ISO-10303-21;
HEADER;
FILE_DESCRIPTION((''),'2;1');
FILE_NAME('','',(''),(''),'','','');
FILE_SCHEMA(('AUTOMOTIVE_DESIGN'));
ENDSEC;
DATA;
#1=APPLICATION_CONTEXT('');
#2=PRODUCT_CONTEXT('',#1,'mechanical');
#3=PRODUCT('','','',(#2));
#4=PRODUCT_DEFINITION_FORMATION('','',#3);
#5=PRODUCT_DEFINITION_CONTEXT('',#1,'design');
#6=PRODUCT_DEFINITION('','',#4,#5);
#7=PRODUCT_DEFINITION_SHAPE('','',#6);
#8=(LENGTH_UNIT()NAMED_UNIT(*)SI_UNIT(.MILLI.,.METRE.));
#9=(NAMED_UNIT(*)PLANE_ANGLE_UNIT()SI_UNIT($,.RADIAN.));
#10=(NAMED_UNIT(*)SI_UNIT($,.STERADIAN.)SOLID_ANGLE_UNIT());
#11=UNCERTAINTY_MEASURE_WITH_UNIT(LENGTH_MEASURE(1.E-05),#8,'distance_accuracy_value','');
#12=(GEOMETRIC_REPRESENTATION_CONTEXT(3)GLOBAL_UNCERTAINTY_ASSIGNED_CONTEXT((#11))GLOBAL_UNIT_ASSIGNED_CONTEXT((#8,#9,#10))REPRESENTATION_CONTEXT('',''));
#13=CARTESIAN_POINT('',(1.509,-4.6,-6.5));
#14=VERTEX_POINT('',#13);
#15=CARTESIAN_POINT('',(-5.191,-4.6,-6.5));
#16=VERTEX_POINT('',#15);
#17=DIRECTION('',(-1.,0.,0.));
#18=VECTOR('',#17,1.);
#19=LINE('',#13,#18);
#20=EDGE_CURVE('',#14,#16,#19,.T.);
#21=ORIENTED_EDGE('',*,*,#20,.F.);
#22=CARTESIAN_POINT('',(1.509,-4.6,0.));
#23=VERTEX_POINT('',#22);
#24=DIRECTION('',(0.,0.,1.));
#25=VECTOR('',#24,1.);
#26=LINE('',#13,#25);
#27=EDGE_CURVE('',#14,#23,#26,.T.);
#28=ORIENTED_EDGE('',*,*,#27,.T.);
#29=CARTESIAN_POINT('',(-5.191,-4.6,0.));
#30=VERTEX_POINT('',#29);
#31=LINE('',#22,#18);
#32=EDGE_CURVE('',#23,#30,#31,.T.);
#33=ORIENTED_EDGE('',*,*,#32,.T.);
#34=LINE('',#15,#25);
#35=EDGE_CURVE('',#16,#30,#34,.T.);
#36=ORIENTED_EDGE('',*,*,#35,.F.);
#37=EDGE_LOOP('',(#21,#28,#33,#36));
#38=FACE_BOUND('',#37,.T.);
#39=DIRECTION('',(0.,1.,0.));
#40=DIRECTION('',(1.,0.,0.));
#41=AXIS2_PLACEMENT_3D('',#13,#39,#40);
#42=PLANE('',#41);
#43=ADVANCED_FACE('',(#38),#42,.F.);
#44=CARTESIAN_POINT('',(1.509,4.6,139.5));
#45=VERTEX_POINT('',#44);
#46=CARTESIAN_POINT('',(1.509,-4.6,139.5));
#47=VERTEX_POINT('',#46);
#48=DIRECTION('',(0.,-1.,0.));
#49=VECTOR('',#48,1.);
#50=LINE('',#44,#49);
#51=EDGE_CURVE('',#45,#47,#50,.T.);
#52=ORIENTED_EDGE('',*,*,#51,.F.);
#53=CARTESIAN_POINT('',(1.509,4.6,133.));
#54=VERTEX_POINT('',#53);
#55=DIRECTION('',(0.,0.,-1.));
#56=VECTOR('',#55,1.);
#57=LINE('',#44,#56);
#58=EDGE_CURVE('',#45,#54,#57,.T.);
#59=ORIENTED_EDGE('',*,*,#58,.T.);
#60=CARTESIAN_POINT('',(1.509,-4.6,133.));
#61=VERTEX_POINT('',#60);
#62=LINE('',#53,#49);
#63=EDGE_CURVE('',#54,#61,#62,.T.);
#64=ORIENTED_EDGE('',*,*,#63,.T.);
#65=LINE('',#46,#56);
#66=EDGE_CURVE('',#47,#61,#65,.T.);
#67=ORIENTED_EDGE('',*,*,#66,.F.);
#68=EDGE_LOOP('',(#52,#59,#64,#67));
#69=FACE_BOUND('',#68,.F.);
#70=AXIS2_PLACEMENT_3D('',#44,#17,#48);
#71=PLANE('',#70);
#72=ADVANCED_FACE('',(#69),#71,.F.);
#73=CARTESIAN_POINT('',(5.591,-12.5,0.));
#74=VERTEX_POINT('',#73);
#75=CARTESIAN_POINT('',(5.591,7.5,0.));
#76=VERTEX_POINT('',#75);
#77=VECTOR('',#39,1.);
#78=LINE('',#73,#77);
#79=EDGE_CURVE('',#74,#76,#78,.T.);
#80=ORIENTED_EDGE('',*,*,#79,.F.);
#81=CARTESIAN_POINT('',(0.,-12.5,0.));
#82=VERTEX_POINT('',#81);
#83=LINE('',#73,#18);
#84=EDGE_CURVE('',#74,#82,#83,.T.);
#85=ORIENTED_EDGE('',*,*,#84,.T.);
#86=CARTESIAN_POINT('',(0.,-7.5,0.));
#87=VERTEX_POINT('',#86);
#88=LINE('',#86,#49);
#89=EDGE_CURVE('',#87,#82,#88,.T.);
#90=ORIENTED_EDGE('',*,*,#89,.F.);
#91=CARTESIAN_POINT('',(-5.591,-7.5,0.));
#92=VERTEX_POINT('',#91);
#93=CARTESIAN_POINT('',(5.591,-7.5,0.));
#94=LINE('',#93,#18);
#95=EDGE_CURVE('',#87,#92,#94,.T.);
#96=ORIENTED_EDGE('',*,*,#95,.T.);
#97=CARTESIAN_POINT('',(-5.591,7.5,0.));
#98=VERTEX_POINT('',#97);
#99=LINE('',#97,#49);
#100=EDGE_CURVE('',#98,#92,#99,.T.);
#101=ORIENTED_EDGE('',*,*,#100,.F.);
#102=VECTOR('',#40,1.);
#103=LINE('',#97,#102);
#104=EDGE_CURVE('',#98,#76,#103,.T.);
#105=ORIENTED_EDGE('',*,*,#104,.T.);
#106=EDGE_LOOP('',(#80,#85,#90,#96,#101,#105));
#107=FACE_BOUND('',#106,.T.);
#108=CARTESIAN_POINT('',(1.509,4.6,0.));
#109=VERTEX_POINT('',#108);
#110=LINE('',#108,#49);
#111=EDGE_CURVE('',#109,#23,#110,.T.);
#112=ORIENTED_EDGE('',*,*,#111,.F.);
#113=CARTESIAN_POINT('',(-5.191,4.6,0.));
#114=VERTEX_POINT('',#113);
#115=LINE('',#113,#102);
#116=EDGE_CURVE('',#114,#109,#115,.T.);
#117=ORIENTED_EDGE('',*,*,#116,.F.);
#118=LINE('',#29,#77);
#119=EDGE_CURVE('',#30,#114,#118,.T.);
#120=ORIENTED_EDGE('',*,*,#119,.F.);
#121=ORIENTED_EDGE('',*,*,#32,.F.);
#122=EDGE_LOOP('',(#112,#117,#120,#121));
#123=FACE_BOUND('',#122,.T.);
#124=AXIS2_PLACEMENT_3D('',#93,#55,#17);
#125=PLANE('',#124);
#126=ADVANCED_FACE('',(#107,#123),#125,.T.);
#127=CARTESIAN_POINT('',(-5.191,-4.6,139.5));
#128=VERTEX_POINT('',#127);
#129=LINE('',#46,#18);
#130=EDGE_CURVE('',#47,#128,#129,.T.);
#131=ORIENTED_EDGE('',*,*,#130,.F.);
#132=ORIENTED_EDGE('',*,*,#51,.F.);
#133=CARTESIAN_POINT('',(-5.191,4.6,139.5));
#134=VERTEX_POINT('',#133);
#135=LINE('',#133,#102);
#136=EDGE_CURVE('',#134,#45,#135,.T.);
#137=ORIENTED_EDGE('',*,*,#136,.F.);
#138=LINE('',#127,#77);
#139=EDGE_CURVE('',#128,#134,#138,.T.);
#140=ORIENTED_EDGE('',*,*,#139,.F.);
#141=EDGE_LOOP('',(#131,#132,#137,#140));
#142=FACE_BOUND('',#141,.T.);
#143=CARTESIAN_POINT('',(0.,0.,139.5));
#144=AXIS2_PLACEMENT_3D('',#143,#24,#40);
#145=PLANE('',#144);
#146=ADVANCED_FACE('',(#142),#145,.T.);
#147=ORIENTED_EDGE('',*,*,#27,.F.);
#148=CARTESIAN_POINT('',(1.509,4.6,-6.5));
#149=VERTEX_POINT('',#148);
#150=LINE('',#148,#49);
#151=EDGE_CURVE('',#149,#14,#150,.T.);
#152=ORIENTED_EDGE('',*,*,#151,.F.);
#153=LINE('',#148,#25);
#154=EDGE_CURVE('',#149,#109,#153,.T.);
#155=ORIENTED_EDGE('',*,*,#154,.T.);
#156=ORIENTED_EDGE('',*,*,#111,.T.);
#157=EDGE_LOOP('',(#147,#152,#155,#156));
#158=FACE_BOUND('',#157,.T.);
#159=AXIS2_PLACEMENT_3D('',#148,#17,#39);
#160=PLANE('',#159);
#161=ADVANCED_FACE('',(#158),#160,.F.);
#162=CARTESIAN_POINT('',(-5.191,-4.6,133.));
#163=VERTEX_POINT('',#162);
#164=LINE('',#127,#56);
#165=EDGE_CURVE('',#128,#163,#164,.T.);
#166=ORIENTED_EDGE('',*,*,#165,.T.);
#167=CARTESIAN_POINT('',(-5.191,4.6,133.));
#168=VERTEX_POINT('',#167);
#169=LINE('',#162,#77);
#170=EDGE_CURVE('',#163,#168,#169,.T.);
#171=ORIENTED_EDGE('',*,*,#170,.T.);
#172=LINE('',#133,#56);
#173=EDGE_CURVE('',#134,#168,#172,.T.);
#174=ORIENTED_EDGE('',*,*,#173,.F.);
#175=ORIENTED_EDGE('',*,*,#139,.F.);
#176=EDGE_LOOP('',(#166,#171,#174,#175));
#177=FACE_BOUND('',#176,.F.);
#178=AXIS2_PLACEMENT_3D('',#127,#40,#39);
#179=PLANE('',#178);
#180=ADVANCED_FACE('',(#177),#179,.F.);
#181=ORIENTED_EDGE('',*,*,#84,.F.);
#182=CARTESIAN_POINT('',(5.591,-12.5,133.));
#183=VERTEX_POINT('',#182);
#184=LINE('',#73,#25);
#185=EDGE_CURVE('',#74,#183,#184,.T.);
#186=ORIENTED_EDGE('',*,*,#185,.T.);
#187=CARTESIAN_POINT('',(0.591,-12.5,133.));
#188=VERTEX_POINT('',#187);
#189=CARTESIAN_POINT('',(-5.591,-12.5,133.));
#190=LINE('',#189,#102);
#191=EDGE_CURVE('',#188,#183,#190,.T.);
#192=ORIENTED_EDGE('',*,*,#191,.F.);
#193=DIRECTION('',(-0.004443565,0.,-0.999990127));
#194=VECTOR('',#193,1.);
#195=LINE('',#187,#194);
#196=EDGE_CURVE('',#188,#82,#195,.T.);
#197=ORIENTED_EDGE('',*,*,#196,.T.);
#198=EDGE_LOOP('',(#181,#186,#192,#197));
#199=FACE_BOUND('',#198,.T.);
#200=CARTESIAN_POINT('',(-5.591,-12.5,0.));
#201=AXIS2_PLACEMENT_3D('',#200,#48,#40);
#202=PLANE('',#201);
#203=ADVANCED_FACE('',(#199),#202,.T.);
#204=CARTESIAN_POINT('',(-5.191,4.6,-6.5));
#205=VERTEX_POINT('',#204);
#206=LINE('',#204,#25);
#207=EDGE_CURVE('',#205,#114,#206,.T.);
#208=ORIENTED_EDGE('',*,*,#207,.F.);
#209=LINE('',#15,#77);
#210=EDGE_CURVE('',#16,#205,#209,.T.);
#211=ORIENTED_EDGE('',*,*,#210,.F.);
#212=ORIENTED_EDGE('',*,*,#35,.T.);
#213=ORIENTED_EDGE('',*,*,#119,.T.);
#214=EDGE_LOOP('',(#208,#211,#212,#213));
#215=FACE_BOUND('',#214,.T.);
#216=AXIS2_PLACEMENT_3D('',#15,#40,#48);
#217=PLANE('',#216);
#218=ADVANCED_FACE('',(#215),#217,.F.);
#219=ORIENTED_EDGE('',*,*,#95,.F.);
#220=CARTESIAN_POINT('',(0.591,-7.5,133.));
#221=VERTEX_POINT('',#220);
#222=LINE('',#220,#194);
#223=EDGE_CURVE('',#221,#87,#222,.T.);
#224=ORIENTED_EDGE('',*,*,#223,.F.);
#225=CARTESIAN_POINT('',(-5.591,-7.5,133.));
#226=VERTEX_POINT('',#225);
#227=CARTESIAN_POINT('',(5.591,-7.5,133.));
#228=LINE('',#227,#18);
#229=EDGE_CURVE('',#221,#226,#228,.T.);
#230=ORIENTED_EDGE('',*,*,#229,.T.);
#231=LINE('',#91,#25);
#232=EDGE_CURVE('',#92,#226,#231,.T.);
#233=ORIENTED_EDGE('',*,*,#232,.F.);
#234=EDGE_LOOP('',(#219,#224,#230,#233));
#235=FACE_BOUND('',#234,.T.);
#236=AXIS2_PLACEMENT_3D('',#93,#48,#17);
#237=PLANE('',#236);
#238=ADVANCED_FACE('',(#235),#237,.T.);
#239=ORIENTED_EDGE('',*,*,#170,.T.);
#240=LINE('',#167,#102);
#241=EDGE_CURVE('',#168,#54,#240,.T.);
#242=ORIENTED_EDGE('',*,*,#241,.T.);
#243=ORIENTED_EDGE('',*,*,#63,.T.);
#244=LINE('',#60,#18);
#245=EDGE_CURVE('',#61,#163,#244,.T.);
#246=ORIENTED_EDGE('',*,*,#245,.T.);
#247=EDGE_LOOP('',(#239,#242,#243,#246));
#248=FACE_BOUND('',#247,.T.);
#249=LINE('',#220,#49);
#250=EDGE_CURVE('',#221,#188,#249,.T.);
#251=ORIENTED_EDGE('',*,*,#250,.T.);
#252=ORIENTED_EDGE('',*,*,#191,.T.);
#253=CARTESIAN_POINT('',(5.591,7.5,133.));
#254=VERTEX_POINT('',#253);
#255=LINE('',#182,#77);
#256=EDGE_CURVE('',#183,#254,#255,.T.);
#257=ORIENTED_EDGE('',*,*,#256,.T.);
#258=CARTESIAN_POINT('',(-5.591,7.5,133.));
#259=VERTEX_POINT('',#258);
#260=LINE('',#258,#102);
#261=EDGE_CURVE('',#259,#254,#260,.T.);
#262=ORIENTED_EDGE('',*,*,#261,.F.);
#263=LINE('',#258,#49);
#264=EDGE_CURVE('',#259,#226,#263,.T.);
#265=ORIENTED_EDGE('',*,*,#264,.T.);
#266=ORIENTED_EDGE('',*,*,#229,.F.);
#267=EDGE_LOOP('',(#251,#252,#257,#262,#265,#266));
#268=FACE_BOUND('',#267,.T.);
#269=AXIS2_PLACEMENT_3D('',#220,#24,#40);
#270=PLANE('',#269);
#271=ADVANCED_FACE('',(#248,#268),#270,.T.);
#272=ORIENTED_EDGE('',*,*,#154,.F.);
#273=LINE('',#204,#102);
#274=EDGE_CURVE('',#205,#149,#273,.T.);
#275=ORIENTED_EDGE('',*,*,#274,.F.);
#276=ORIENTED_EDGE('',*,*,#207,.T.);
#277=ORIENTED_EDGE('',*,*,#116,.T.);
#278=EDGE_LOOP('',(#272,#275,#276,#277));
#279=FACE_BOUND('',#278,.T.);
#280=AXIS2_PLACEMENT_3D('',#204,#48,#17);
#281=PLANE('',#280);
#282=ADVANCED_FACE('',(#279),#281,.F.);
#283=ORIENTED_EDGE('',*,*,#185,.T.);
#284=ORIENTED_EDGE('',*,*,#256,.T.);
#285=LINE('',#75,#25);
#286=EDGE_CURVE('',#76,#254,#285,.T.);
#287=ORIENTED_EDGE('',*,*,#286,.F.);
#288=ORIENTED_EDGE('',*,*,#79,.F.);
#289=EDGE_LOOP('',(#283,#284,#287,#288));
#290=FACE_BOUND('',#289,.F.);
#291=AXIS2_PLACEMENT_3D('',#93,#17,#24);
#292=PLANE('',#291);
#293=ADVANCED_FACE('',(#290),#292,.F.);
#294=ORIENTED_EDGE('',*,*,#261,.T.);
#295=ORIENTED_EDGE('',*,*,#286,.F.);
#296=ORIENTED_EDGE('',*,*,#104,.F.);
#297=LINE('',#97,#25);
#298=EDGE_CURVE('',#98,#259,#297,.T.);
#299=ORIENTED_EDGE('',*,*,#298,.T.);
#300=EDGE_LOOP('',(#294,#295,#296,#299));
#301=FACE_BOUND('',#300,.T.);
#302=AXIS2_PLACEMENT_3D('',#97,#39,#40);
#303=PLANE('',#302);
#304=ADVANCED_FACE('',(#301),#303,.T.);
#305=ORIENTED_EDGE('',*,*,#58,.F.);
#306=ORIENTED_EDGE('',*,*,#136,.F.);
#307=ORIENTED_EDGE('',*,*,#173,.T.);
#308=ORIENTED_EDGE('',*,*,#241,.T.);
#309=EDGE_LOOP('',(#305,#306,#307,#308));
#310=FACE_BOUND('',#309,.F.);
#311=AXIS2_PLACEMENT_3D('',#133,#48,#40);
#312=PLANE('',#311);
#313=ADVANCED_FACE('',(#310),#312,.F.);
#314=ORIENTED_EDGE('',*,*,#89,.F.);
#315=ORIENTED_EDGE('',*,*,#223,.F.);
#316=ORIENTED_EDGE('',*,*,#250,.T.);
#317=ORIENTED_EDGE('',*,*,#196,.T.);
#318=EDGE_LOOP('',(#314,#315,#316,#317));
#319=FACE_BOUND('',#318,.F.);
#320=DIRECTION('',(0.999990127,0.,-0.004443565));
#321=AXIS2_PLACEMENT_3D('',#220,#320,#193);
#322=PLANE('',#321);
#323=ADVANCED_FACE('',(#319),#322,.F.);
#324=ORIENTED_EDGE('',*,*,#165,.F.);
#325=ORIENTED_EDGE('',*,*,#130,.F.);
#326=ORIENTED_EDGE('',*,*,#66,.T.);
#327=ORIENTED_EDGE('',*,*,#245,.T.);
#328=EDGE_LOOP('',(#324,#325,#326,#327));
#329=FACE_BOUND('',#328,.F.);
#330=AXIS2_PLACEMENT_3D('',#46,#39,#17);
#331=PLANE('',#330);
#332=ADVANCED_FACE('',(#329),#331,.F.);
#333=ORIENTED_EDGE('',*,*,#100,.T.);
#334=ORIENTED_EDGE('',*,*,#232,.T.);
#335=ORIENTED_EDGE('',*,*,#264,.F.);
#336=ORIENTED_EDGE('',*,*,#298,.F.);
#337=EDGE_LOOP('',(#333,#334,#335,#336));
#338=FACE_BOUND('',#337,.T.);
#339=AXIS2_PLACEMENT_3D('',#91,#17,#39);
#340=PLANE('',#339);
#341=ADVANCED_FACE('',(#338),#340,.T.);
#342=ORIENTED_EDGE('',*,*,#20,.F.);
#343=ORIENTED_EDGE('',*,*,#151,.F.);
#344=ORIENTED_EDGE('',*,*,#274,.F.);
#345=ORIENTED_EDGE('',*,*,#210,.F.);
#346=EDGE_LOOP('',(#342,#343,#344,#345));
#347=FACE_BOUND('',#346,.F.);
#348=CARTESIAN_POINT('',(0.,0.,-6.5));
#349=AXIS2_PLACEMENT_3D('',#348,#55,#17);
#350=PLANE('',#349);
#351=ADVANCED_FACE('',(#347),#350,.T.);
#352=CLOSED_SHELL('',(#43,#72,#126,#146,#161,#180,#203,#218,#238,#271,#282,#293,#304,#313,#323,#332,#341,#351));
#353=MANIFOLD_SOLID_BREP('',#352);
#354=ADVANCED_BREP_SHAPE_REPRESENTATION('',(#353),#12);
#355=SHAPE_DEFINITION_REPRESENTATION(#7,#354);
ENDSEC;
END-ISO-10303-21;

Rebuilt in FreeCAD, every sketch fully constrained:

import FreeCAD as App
import Part
import Sketcher
from FreeCAD import Vector
Q = App.Units.Quantity

doc = App.newDocument("Part")
body = doc.addObject("PartDesign::Body", "Body")

sketch1 = body.newObject("Sketcher::SketchObject", "Sketch")
sketch1.AttachmentSupport = (doc.getObject("XY_Plane"), [""])
sketch1.MapMode = "FlatFace"
sketch1.addGeometry(Part.LineSegment(Vector(-6, 8, 0), Vector(-6, -8, 0)), False)
sketch1.addGeometry(Part.LineSegment(Vector(-6, -8, 0), Vector(6, -8, 0)), False)
sketch1.addGeometry(Part.LineSegment(Vector(6, -8, 0), Vector(6, 8, 0)), False)
sketch1.addGeometry(Part.LineSegment(Vector(6, 8, 0), Vector(-6, 8, 0)), False)
sketch1.addConstraint(Sketcher.Constraint("Coincident", 0, 2, 1, 1))
sketch1.addConstraint(Sketcher.Constraint("Coincident", 1, 2, 2, 1))
sketch1.addConstraint(Sketcher.Constraint("Coincident", 2, 2, 3, 1))
sketch1.addConstraint(Sketcher.Constraint("Coincident", 3, 2, 0, 1))
sketch1.addConstraint(Sketcher.Constraint("Vertical", 0))
sketch1.addConstraint(Sketcher.Constraint("Horizontal", 1))
sketch1.addConstraint(Sketcher.Constraint("Vertical", 2))
sketch1.addConstraint(Sketcher.Constraint("Horizontal", 3))
sketch1.addConstraint(Sketcher.Constraint("Symmetric", 0, 2, 2, 2, -1, 1))
sketch1.addConstraint(Sketcher.Constraint("DistanceY", 0, 2, 0, 1, Q("15 mm")))
sketch1.addConstraint(Sketcher.Constraint("DistanceX", 1, 1, 1, 2, Q("11.182 mm")))
pad1 = body.newObject("PartDesign::Pad", "Pad")
pad1.Profile = sketch1
pad1.Length = 133

sketch2 = body.newObject("Sketcher::SketchObject", "Sketch001")
sketch2.AttachmentSupport = (doc.getObject("XY_Plane"), [""])
sketch2.MapMode = "FlatFace"
sketch2.AttachmentOffset = App.Placement(Vector(0, 0, 133), App.Rotation())
sketch2.addGeometry(Part.LineSegment(Vector(2, 5, 0), Vector(-6, 5, 0)), False)
sketch2.addGeometry(Part.LineSegment(Vector(-6, 5, 0), Vector(-6, -5, 0)), False)
sketch2.addGeometry(Part.LineSegment(Vector(-6, -5, 0), Vector(2, -5, 0)), False)
sketch2.addGeometry(Part.LineSegment(Vector(2, -5, 0), Vector(2, 5, 0)), False)
sketch2.addConstraint(Sketcher.Constraint("Coincident", 0, 2, 1, 1))
sketch2.addConstraint(Sketcher.Constraint("Coincident", 1, 2, 2, 1))
sketch2.addConstraint(Sketcher.Constraint("Coincident", 2, 2, 3, 1))
sketch2.addConstraint(Sketcher.Constraint("Coincident", 3, 2, 0, 1))
sketch2.addConstraint(Sketcher.Constraint("Horizontal", 0))
sketch2.addConstraint(Sketcher.Constraint("Vertical", 1))
sketch2.addConstraint(Sketcher.Constraint("Horizontal", 2))
sketch2.addConstraint(Sketcher.Constraint("Vertical", 3))
sketch2.addConstraint(Sketcher.Constraint("DistanceY", 1, 2, 1, 1, Q("10 mm")))
sketch2.addConstraint(Sketcher.Constraint("DistanceX", 0, 2, 0, 1, Q("7.5 mm")))
sketch2.addConstraint(Sketcher.Constraint("DistanceY", -1, 1, 0, 2, Q("5 mm")))
sketch2.addConstraint(Sketcher.Constraint("DistanceX", 0, 2, -1, 1, Q("5.591 mm")))
pad2 = body.newObject("PartDesign::Pad", "Pad001")
pad2.Profile = sketch2
pad2.Length = 6.5
doc.recompute()

datumplane = body.newObject("PartDesign::Plane", "DatumPlane")
datumplane.AttachmentSupport = (doc.getObject("XY_Plane"), [""])
datumplane.MapMode = "FlatFace"
datumplane.AttachmentOffset = App.Placement(Vector(0, 0, 66.5), App.Rotation())
mirrored = body.newObject("PartDesign::Mirrored", "Mirrored")
mirrored.Originals = [pad2]
mirrored.MirrorPlane = (datumplane, [""])
body.Tip = mirrored

sketch3 = body.newObject("Sketcher::SketchObject", "Sketch002")
sketch3.AttachmentSupport = (doc.getObject("XZ_Plane"), [""])
sketch3.MapMode = "FlatFace"
sketch3.AttachmentOffset = App.Placement(Vector(0, 0, 7.5), App.Rotation())
sketch3.addGeometry(Part.LineSegment(Vector(6, 133, 0), Vector(1, 133, 0)), False)
sketch3.addGeometry(Part.LineSegment(Vector(1, 133, 0), Vector(0, 0, 0)), False)
sketch3.addGeometry(Part.LineSegment(Vector(0, 0, 0), Vector(6, 0, 0)), False)
sketch3.addGeometry(Part.LineSegment(Vector(6, 0, 0), Vector(6, 133, 0)), False)
sketch3.addConstraint(Sketcher.Constraint("Coincident", 0, 2, 1, 1))
sketch3.addConstraint(Sketcher.Constraint("Coincident", 1, 2, 2, 1))
sketch3.addConstraint(Sketcher.Constraint("Coincident", 2, 2, 3, 1))
sketch3.addConstraint(Sketcher.Constraint("Coincident", 3, 2, 0, 1))
sketch3.addConstraint(Sketcher.Constraint("Horizontal", 0))
sketch3.addConstraint(Sketcher.Constraint("Horizontal", 2))
sketch3.addConstraint(Sketcher.Constraint("Vertical", 3))
sketch3.addConstraint(Sketcher.Constraint("Coincident", 1, 2, -1, 1))
sketch3.addConstraint(Sketcher.Constraint("DistanceX", 0, 2, 0, 1, Q("5 mm")))
sketch3.addConstraint(Sketcher.Constraint("DistanceY", 3, 1, 3, 2, Q("133 mm")))
sketch3.addConstraint(Sketcher.Constraint("DistanceX", 2, 1, 2, 2, Q("5.591 mm")))
pad3 = body.newObject("PartDesign::Pad", "Pad002")
pad3.Profile = sketch3
pad3.Length = 5

sketch4 = body.newObject("Sketcher::SketchObject", "Sketch003")
sketch4.AttachmentSupport = (doc.getObject("XY_Plane"), [""])
sketch4.MapMode = "FlatFace"
sketch4.AttachmentOffset = App.Placement(Vector(0, 0, 139.5), App.Rotation())
sketch4.addGeometry(Part.LineSegment(Vector(2, 5, 0), Vector(-6, 5, 0)), False)
sketch4.addGeometry(Part.LineSegment(Vector(-6, 5, 0), Vector(-6, -5, 0)), False)
sketch4.addGeometry(Part.LineSegment(Vector(-6, -5, 0), Vector(2, -5, 0)), False)
sketch4.addGeometry(Part.LineSegment(Vector(2, -5, 0), Vector(2, 5, 0)), False)
sketch4.addGeometry(Part.LineSegment(Vector(2, -5, 0), Vector(-5, -5, 0)), False)
sketch4.addGeometry(Part.LineSegment(Vector(-5, -5, 0), Vector(-5, 5, 0)), False)
sketch4.addGeometry(Part.LineSegment(Vector(-5, 5, 0), Vector(2, 5, 0)), False)
sketch4.addGeometry(Part.LineSegment(Vector(2, 5, 0), Vector(2, -5, 0)), False)
sketch4.addConstraint(Sketcher.Constraint("Coincident", 0, 2, 1, 1))
sketch4.addConstraint(Sketcher.Constraint("Coincident", 1, 2, 2, 1))
sketch4.addConstraint(Sketcher.Constraint("Coincident", 2, 2, 3, 1))
sketch4.addConstraint(Sketcher.Constraint("Coincident", 3, 2, 0, 1))
sketch4.addConstraint(Sketcher.Constraint("Coincident", 4, 2, 5, 1))
sketch4.addConstraint(Sketcher.Constraint("Coincident", 5, 2, 6, 1))
sketch4.addConstraint(Sketcher.Constraint("Coincident", 6, 2, 7, 1))
sketch4.addConstraint(Sketcher.Constraint("Coincident", 7, 2, 4, 1))
sketch4.addConstraint(Sketcher.Constraint("Horizontal", 0))
sketch4.addConstraint(Sketcher.Constraint("Vertical", 1))
sketch4.addConstraint(Sketcher.Constraint("Horizontal", 2))
sketch4.addConstraint(Sketcher.Constraint("Vertical", 3))
sketch4.addConstraint(Sketcher.Constraint("Horizontal", 4))
sketch4.addConstraint(Sketcher.Constraint("Vertical", 5))
sketch4.addConstraint(Sketcher.Constraint("Horizontal", 6))
sketch4.addConstraint(Sketcher.Constraint("Vertical", 7))
sketch4.addConstraint(Sketcher.Constraint("DistanceX", 1, 2, 4, 2, Q("0.4 mm")))
sketch4.addConstraint(Sketcher.Constraint("DistanceY", 1, 2, 4, 2, Q("0.4 mm")))
sketch4.addConstraint(Sketcher.Constraint("DistanceY", 5, 2, 0, 2, Q("0.4 mm")))
sketch4.addConstraint(Sketcher.Constraint("DistanceX", 6, 2, 3, 2, Q("0.4 mm")))
sketch4.addConstraint(Sketcher.Constraint("DistanceY", 1, 2, 1, 1, Q("10 mm")))
sketch4.addConstraint(Sketcher.Constraint("DistanceX", 0, 2, 0, 1, Q("7.5 mm")))
sketch4.addConstraint(Sketcher.Constraint("DistanceY", -1, 1, 0, 2, Q("5 mm")))
sketch4.addConstraint(Sketcher.Constraint("DistanceX", 0, 2, -1, 1, Q("5.591 mm")))
pocket1 = body.newObject("PartDesign::Pocket", "Pocket")
pocket1.Profile = sketch4
pocket1.Length = 6.5
doc.recompute()

datumplane2 = body.newObject("PartDesign::Plane", "DatumPlane001")
datumplane2.AttachmentSupport = (doc.getObject("XY_Plane"), [""])
datumplane2.MapMode = "FlatFace"
datumplane2.AttachmentOffset = App.Placement(Vector(0, 0, 66.5), App.Rotation())
mirrored2 = body.newObject("PartDesign::Mirrored", "Mirrored001")
mirrored2.Originals = [pocket1]
mirrored2.MirrorPlane = (datumplane2, [""])
body.Tip = mirrored2

doc.recompute()
